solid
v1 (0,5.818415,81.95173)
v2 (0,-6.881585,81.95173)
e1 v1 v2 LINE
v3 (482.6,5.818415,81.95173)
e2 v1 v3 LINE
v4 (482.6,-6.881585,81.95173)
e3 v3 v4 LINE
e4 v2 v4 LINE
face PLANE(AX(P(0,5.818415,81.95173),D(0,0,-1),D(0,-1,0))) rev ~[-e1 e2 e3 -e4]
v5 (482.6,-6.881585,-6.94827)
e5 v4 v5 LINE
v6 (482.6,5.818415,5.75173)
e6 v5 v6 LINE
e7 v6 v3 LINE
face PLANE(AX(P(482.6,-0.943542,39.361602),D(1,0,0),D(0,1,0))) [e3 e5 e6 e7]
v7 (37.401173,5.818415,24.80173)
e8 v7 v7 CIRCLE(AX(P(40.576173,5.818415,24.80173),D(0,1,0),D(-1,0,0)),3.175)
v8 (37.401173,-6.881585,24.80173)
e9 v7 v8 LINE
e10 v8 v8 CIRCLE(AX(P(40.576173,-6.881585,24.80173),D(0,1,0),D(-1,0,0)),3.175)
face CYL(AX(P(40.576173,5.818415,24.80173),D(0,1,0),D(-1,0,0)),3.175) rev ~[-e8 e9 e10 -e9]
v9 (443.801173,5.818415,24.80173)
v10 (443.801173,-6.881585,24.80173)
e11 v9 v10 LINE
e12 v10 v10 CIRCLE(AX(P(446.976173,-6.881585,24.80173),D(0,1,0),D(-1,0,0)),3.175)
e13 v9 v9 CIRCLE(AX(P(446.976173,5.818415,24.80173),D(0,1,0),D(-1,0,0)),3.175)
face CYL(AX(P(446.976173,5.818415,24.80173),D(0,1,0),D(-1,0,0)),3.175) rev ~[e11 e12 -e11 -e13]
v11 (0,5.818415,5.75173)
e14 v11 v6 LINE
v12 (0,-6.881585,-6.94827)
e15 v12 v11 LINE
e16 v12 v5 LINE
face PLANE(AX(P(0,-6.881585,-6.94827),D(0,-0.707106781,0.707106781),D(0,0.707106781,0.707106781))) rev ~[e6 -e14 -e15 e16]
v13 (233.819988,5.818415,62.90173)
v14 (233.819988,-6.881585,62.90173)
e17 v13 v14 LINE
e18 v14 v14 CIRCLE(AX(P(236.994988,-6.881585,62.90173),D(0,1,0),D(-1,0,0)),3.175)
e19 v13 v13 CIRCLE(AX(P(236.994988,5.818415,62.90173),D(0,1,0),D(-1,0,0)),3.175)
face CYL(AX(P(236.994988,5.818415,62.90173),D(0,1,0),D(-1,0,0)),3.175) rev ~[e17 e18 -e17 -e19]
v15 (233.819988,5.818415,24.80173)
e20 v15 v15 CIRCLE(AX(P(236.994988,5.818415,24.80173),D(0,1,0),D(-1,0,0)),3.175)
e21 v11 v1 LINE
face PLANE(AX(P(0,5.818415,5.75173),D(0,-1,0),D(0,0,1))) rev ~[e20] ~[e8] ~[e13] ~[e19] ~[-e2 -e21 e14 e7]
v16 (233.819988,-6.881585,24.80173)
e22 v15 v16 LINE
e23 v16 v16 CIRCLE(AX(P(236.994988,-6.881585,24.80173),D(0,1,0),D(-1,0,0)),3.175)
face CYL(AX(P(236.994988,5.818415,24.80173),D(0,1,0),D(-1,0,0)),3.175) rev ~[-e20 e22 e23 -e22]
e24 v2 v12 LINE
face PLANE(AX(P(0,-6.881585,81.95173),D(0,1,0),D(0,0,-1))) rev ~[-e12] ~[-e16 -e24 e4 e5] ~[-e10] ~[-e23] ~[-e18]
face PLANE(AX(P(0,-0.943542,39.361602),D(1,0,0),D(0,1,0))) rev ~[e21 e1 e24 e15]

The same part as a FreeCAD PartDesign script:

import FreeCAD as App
import Part
import Sketcher
from FreeCAD import Vector
Q = App.Units.Quantity


def add_polygon(sketch, points):
    """Adds a closed chain of lines whose ends are joined by coincident constraints."""
    first, n = sketch.GeometryCount, len(points)
    for a, b in zip(points, points[1:] + points[:1]):
        sketch.addGeometry(Part.LineSegment(App.Vector(*a, 0), App.Vector(*b, 0)), False)
    for i in range(n):
        sketch.addConstraint(Sketcher.Constraint("Coincident", first + i, 2, first + (i + 1) % n, 1))

doc = App.newDocument("Part")
body = doc.addObject("PartDesign::Body", "Body")

# Sketch on YZ plane
sketch1 = body.newObject("Sketcher::SketchObject", "Sketch")
sketch1.AttachmentSupport = (doc.getObject("YZ_Plane"), [""])
sketch1.MapMode = "FlatFace"
add_polygon(sketch1, [(5.818415, 81.95173), (-6.881585, 81.95173), (-6.881585, -6.94827), (5.818415, 5.75173)])  # lines 0-3
sketch1.addConstraint([
    Sketcher.Constraint("Horizontal", 0),
    Sketcher.Constraint("Vertical", 1),
    Sketcher.Constraint("Vertical", 3),
    Sketcher.Constraint("DistanceY", 3, 1, 3, 2, Q("3 in")),
    Sketcher.Constraint("DistanceX", 0, 2, 0, 1, Q("0.5 in")),
    Sketcher.Constraint("DistanceY", 1, 2, 1, 1, Q("3.5 in")),
    Sketcher.Constraint("DistanceY", -1, 1, 0, 2, 81.95173),
    Sketcher.Constraint("DistanceX", 0, 2, -1, 1, 6.881585),
])
pad1 = body.newObject("PartDesign::Pad", "Pad")
pad1.Profile = sketch1
pad1.Length = Q("19 in")

# Sketch on XZ plane
sketch2 = body.newObject("Sketcher::SketchObject", "Sketch001")
sketch2.AttachmentSupport = (doc.getObject("XZ_Plane"), [""])
sketch2.MapMode = "FlatFace"
sketch2.AttachmentOffset = App.Placement(Vector(0, 0, -5.818415), App.Rotation())
sketch2.addGeometry([
    Part.Circle(Vector(40.576173, 24.80173, 0), Vector(0, 0, 1), 3.175),
    Part.Circle(Vector(236.994988, 24.80173, 0), Vector(0, 0, 1), 3.175),
    Part.Circle(Vector(236.994988, 62.90173, 0), Vector(0, 0, 1), 3.175),
    Part.Circle(Vector(446.976173, 24.80173, 0), Vector(0, 0, 1), 3.175),
], False)
sketch2.addConstraint([
    Sketcher.Constraint("Equal", 0, 1),
    Sketcher.Constraint("Equal", 1, 2),
    Sketcher.Constraint("Equal", 2, 3),
    Sketcher.Constraint("Horizontal", 0, 3, 1, 3),
    Sketcher.Constraint("Horizontal", 1, 3, 3, 3),
    Sketcher.Constraint("Vertical", 1, 3, 2, 3),
    Sketcher.Constraint("Diameter", 0, Q("0.25 in")),
    Sketcher.Constraint("DistanceX", 0, 3, 3, 3, Q("16 in")),
    Sketcher.Constraint("DistanceY", 1, 3, 2, 3, Q("1.5 in")),
    Sketcher.Constraint("DistanceY", -1, 1, 0, 3, 24.80173),
    Sketcher.Constraint("DistanceX", -1, 1, 1, 3, 236.994988),
    Sketcher.Constraint("DistanceX", -1, 1, 0, 3, 40.576173),
])
pocket1 = body.newObject("PartDesign::Pocket", "Pocket")
pocket1.Profile = sketch2
pocket1.Length = Q("0.5 in")
pocket1.Reversed = True

doc.recompute()
